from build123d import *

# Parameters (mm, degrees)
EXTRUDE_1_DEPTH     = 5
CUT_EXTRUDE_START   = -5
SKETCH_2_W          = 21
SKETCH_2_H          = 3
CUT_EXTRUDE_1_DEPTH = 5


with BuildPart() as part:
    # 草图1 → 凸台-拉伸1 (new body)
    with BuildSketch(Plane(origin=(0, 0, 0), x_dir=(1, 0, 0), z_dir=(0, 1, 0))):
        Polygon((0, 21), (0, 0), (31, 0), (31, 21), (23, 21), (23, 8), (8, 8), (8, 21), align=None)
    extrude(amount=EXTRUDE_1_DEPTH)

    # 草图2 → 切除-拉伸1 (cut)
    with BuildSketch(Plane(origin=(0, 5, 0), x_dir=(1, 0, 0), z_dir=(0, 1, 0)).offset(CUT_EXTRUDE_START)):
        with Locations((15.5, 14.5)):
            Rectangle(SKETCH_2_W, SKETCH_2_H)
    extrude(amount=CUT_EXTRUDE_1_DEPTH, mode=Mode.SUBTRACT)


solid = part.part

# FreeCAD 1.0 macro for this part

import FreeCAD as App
import Part
import Sketcher

doc = App.newDocument("Part")
params = doc.addObject("Spreadsheet::Sheet", "Params")
for row, (alias, value) in enumerate([
    ("sketch1_width", "31 mm"),
    ("sketch1_width2", "8 mm"),
    ("sketch1_height", "21 mm"),
    ("sketch1_height2", "13 mm"),
    ("pad1_length", "5 mm"),
    ("sketch2_width", "21 mm"),
    ("sketch2_height", "3 mm"),
    ("pocket1_length", "5 mm"),
], start=1):
    params.set(f"A{row}", alias)
    params.set(f"B{row}", "=" + value)
    params.setAlias(f"B{row}", alias)

body = doc.addObject("PartDesign::Body", "Body")

# Sketch on XZ plane
sketch1 = body.newObject("Sketcher::SketchObject", "Sketch")
sketch1.AttachmentSupport = (doc.getObject("XZ_Plane"), [""])
sketch1.MapMode = "FlatFace"
sketch1.addGeometry([
    Part.LineSegment(App.Vector(0, -21, 0), App.Vector(0, 0, 0)),  # 0
    Part.LineSegment(App.Vector(0, 0, 0), App.Vector(31, 0, 0)),  # 1
    Part.LineSegment(App.Vector(31, 0, 0), App.Vector(31, -21, 0)),  # 2
    Part.LineSegment(App.Vector(31, -21, 0), App.Vector(23, -21, 0)),  # 3
    Part.LineSegment(App.Vector(23, -21, 0), App.Vector(23, -8, 0)),  # 4
    Part.LineSegment(App.Vector(23, -8, 0), App.Vector(8, -8, 0)),  # 5
    Part.LineSegment(App.Vector(8, -8, 0), App.Vector(8, -21, 0)),  # 6
    Part.LineSegment(App.Vector(8, -21, 0), App.Vector(0, -21, 0)),  # 7
], False)
sketch1.addConstraint([
    Sketcher.Constraint("Coincident", 0, 2, 1, 1),
    Sketcher.Constraint("Coincident", 1, 2, 2, 1),
    Sketcher.Constraint("Coincident", 2, 2, 3, 1),
    Sketcher.Constraint("Coincident", 3, 2, 4, 1),
    Sketcher.Constraint("Coincident", 4, 2, 5, 1),
    Sketcher.Constraint("Coincident", 5, 2, 6, 1),
    Sketcher.Constraint("Coincident", 6, 2, 7, 1),
    Sketcher.Constraint("Coincident", 7, 2, 0, 1),
    Sketcher.Constraint("Vertical", 0),
    Sketcher.Constraint("Horizontal", 1),
    Sketcher.Constraint("Vertical", 2),
    Sketcher.Constraint("Horizontal", 3),
    Sketcher.Constraint("Vertical", 4),
    Sketcher.Constraint("Horizontal", 5),
    Sketcher.Constraint("Vertical", 6),
    Sketcher.Constraint("Horizontal", 7),
    Sketcher.Constraint("Coincident", 0, 2, -1, 1),
    Sketcher.Constraint("Horizontal", 3, 2, 6, 2),
    Sketcher.Constraint("Equal", 3, 7),
    Sketcher.Constraint("DistanceX", 1, 1, 1, 2, 31.0),
    Sketcher.Constraint("DistanceX", 3, 2, 3, 1, 8.0),
    Sketcher.Constraint("DistanceY", 0, 1, 0, 2, 21.0),
    Sketcher.Constraint("DistanceY", 4, 1, 4, 2, 13.0),
])
sketch1.setExpression("Constraints[19]", "Params.sketch1_width")
sketch1.setExpression("Constraints[20]", "Params.sketch1_width2")
sketch1.setExpression("Constraints[21]", "Params.sketch1_height")
sketch1.setExpression("Constraints[22]", "Params.sketch1_height2")
pad1 = body.newObject("PartDesign::Pad", "Pad")
pad1.Profile = sketch1
pad1.setExpression("Length", "Params.pad1_length")
pad1.Reversed = True

# Sketch on XZ plane
sketch2 = body.newObject("Sketcher::SketchObject", "Sketch001")
sketch2.AttachmentSupport = (doc.getObject("XZ_Plane"), [""])
sketch2.MapMode = "FlatFace"
sketch2.addGeometry([
    Part.LineSegment(App.Vector(5, -16, 0), App.Vector(5, -13, 0)),
    Part.LineSegment(App.Vector(5, -13, 0), App.Vector(26, -13, 0)),
    Part.LineSegment(App.Vector(26, -13, 0), App.Vector(26, -16, 0)),
    Part.LineSegment(App.Vector(26, -16, 0), App.Vector(5, -16, 0)),
], False)
sketch2.addConstraint([
    Sketcher.Constraint("Coincident", 0, 2, 1, 1),
    Sketcher.Constraint("Coincident", 1, 2, 2, 1),
    Sketcher.Constraint("Coincident", 2, 2, 3, 1),
    Sketcher.Constraint("Coincident", 3, 2, 0, 1),
    Sketcher.Constraint("Vertical", 0),
    Sketcher.Constraint("Horizontal", 1),
    Sketcher.Constraint("Vertical", 2),
    Sketcher.Constraint("Horizontal", 3),
    Sketcher.Constraint("DistanceX", 1, 1, 1, 2, 21.0),
    Sketcher.Constraint("DistanceY", 0, 1, 0, 2, 3.0),
    Sketcher.Constraint("DistanceX", -1, 1, 0, 2, 5.0),
    Sketcher.Constraint("DistanceY", 0, 2, -1, 1, 13.0),
])
sketch2.setExpression("Constraints[8]", "Params.sketch2_width")
sketch2.setExpression("Constraints[9]", "Params.sketch2_height")
pocket1 = body.newObject("PartDesign::Pocket", "Pocket")
pocket1.Profile = sketch2
pocket1.setExpression("Length", "Params.pocket1_length")

doc.recompute()
